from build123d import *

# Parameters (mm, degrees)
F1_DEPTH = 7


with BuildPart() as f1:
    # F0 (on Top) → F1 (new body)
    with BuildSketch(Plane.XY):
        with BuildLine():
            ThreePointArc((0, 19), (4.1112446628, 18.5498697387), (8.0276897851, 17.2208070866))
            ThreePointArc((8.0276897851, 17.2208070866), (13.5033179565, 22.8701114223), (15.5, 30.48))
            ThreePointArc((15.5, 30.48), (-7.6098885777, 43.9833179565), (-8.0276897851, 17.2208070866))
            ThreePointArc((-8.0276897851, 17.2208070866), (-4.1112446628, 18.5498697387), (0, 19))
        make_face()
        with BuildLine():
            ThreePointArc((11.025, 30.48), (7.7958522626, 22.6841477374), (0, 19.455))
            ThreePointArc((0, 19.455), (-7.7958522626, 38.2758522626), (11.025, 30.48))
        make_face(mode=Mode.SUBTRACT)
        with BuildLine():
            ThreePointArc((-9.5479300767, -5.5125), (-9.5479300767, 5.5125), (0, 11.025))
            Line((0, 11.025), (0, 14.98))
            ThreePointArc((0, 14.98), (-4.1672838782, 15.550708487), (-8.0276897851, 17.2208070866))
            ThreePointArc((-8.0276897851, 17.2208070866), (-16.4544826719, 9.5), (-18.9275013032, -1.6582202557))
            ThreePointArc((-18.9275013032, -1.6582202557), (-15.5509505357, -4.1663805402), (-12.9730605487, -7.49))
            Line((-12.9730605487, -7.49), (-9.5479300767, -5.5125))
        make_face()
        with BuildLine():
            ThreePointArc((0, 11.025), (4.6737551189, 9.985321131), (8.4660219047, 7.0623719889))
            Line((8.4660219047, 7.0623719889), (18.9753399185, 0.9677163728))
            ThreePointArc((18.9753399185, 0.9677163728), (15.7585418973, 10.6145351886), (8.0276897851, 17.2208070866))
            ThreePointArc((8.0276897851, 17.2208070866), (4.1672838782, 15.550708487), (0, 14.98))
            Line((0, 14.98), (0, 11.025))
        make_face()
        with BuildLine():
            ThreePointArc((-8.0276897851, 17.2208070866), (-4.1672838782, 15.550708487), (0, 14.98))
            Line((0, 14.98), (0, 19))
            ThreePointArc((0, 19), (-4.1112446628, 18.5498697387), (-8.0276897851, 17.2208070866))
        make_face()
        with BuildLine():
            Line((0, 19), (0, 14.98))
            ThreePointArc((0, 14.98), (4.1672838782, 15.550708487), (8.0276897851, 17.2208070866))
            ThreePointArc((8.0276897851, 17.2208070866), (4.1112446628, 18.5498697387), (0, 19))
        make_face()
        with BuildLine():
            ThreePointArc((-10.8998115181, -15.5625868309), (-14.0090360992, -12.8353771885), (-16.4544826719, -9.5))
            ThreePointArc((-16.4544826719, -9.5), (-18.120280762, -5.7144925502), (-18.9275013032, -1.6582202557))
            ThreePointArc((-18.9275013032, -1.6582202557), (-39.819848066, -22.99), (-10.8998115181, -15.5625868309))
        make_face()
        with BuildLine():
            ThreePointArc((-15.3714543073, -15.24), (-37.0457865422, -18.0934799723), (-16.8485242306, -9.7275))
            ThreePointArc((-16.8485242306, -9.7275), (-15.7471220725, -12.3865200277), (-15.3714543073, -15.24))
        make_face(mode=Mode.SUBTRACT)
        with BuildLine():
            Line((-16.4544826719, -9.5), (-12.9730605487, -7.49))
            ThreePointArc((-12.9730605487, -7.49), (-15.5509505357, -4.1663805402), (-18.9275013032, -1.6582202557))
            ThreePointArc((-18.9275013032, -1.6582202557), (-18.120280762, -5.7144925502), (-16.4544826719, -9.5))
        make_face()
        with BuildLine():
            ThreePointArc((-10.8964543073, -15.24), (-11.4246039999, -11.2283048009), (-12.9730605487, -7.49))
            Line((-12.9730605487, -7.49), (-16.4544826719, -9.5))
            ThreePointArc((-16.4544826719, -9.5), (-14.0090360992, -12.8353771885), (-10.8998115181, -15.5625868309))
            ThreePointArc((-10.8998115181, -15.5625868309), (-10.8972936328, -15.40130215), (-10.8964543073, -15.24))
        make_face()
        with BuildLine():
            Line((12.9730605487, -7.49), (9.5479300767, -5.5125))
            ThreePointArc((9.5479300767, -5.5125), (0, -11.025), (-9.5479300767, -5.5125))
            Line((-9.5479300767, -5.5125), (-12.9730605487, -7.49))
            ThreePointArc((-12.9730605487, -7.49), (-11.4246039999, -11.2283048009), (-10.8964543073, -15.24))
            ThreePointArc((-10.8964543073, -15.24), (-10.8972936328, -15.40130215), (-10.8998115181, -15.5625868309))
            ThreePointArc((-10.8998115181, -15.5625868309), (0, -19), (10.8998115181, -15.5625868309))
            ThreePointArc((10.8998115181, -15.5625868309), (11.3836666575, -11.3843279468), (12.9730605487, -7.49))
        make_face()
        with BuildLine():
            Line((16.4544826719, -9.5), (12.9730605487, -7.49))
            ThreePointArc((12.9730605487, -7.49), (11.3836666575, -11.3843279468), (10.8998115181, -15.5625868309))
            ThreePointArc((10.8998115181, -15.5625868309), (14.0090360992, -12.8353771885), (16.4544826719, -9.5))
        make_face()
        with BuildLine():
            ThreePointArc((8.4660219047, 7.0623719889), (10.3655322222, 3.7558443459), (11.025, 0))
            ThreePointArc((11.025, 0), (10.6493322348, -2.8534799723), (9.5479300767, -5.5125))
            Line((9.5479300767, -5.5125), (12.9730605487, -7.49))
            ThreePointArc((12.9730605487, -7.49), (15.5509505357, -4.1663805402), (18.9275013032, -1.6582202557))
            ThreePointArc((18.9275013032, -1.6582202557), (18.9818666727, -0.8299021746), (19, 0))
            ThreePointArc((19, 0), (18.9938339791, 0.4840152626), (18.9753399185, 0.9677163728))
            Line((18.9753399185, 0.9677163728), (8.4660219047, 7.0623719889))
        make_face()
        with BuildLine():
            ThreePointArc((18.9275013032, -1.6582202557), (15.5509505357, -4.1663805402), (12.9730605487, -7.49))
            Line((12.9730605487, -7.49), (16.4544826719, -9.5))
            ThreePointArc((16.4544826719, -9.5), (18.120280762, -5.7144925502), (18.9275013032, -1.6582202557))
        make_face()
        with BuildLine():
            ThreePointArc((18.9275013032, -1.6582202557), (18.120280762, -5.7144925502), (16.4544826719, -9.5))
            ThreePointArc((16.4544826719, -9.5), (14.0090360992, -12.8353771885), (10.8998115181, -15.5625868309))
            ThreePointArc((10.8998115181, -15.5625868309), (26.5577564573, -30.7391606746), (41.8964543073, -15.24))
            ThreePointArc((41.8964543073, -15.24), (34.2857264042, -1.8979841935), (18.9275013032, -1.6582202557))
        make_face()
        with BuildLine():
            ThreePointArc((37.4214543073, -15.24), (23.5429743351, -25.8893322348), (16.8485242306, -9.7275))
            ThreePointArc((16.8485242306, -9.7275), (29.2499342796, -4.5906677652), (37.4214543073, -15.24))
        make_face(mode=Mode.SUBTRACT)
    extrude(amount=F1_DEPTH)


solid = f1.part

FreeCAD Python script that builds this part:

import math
import FreeCAD as App
import Part
import Sketcher

doc = App.newDocument("Part")
body = doc.addObject("PartDesign::Body", "Body")

# Sketch on XY plane
sketch1 = doc.addObject("Sketcher::SketchObject", "Sketch")
body.addObject(sketch1)
sketch1.AttachmentSupport = (doc.XY_Plane, [""])
sketch1.MapMode = "FlatFace"
sketch1.addGeometry([
    Part.ArcOfCircle(Part.Circle(App.Vector(0, 0, 0), App.Vector(0, 0, 1), 19), math.radians(3), math.radians(65)),  # 0
    Part.ArcOfCircle(Part.Circle(App.Vector(0, 30.5, 0), App.Vector(0, 0, 1), 15.5), math.radians(-59), math.radians(0)),  # 1
    Part.ArcOfCircle(Part.Circle(App.Vector(0, 30.5, 0), App.Vector(0, 0, 1), 15.5), math.radians(0), math.radians(239)),  # 2
    Part.ArcOfCircle(Part.Circle(App.Vector(0, 0, 0), App.Vector(0, 0, 1), 19), math.radians(115), math.radians(185)),  # 3
    Part.ArcOfCircle(Part.Circle(App.Vector(-26.4, -15.2, 0), App.Vector(0, 0, 1), 15.5), math.radians(61), math.radians(359)),  # 4
    Part.ArcOfCircle(Part.Circle(App.Vector(0, 0, 0), App.Vector(0, 0, 1), 19), math.radians(-125), math.radians(-55)),  # 5
    Part.ArcOfCircle(Part.Circle(App.Vector(26.4, -15.2, 0), App.Vector(0, 0, 1), 15.5), math.radians(-179), math.radians(0)),  # 6
    Part.ArcOfCircle(Part.Circle(App.Vector(26.4, -15.2, 0), App.Vector(0, 0, 1), 15.5), math.radians(0), math.radians(119)),  # 7
    Part.ArcOfCircle(Part.Circle(App.Vector(0, 0, 0), App.Vector(0, 0, 1), 19), math.radians(-5.01), math.radians(0)),  # 8
    Part.ArcOfCircle(Part.Circle(App.Vector(0, 0, 0), App.Vector(0, 0, 1), 19), math.radians(0), math.radians(2.92)),  # 9
    Part.ArcOfCircle(Part.Circle(App.Vector(-26.4, -15.2, 0), App.Vector(0, 0, 1), 11), math.radians(30), math.radians(360)),  # 10
    Part.ArcOfCircle(Part.Circle(App.Vector(-26.4, -15.2, 0), App.Vector(0, 0, 1), 11), math.radians(0), math.radians(30)),  # 11
    Part.ArcOfCircle(Part.Circle(App.Vector(26.4, -15.2, 0), App.Vector(0, 0, 1), 11), math.radians(0), math.radians(150)),  # 12
    Part.ArcOfCircle(Part.Circle(App.Vector(26.4, -15.2, 0), App.Vector(0, 0, 1), 11), math.radians(150), math.radians(360)),  # 13
    Part.ArcOfCircle(Part.Circle(App.Vector(0, 0, 0), App.Vector(0, 0, 1), 11), math.radians(-150), math.radians(-30)),  # 14
    Part.ArcOfCircle(Part.Circle(App.Vector(0, 0, 0), App.Vector(0, 0, 1), 11), math.radians(90), math.radians(210)),  # 15
    Part.ArcOfCircle(Part.Circle(App.Vector(0, 0, 0), App.Vector(0, 0, 1), 11), math.radians(0), math.radians(90)),  # 16
    Part.ArcOfCircle(Part.Circle(App.Vector(0, 0, 0), App.Vector(0, 0, 1), 11), math.radians(-30), math.radians(0)),  # 17
    Part.ArcOfCircle(Part.Circle(App.Vector(0, 30.5, 0), App.Vector(0, 0, 1), 11), math.radians(0), math.radians(270)),  # 18
    Part.ArcOfCircle(Part.Circle(App.Vector(0, 30.5, 0), App.Vector(0, 0, 1), 11), math.radians(-90), math.radians(0)),  # 19
], False)
sketch1.addConstraint([
    Sketcher.Constraint("Coincident", 0, 2, 1, 1),
    Sketcher.Constraint("Tangent", 1, 2, 2, 1),
    Sketcher.Constraint("Coincident", 2, 2, 3, 1),
    Sketcher.Constraint("Coincident", 3, 2, 4, 1),
    Sketcher.Constraint("Coincident", 4, 2, 5, 1),
    Sketcher.Constraint("Coincident", 5, 2, 6, 1),
    Sketcher.Constraint("Tangent", 6, 2, 7, 1),
    Sketcher.Constraint("Coincident", 7, 2, 8, 1),
    Sketcher.Constraint("Tangent", 8, 2, 9, 1),
    Sketcher.Constraint("Tangent", 9, 2, 0, 1),
    Sketcher.Constraint("Tangent", 10, 1, 11, 2),
    Sketcher.Constraint("Coincident", 11, 1, 10, 2),
    Sketcher.Constraint("Tangent", 12, 1, 13, 2),
    Sketcher.Constraint("Coincident", 13, 1, 12, 2),
    Sketcher.Constraint("Tangent", 14, 1, 15, 2),
    Sketcher.Constraint("Tangent", 15, 1, 16, 2),
    Sketcher.Constraint("Tangent", 16, 1, 17, 2),
    Sketcher.Constraint("Tangent", 17, 1, 14, 2),
    Sketcher.Constraint("Tangent", 18, 1, 19, 2),
    Sketcher.Constraint("Coincident", 19, 1, 18, 2),
    Sketcher.Constraint("Coincident", 0, 3, -1, 1),
    Sketcher.Constraint("Coincident", 3, 3, -1, 1),
    Sketcher.Constraint("Coincident", 5, 3, -1, 1),
    Sketcher.Constraint("Coincident", 8, 3, -1, 1),
    Sketcher.Constraint("Coincident", 14, 3, -1, 1),
    Sketcher.Constraint("Coincident", 10, 3, 4, 3),
    Sketcher.Constraint("Coincident", 12, 3, 6, 3),
    Sketcher.Constraint("Coincident", 18, 3, 1, 3),
    Sketcher.Constraint("Equal", 1, 2),
    Sketcher.Constraint("Equal", 0, 3),
    Sketcher.Constraint("Equal", 2, 4),
    Sketcher.Constraint("Equal", 3, 5),
    Sketcher.Constraint("Equal", 4, 6),
    Sketcher.Constraint("Equal", 6, 7),
    Sketcher.Constraint("Equal", 11, 12),
    Sketcher.Constraint("Equal", 13, 14),
    Sketcher.Constraint("Equal", 14, 15),
    Sketcher.Constraint("Equal", 17, 18),
    Sketcher.Constraint("Symmetric", 4, 3, 6, 3, -2),
    Sketcher.Constraint("PointOnObject", 1, 3, -2),
    Sketcher.Constraint("PointOnObject", 8, 2, -1),
    Sketcher.Constraint("PointOnObject", 15, 1, -2),
    Sketcher.Constraint("PointOnObject", 16, 1, -1),
    Sketcher.Constraint("PointOnObject", 19, 1, -2),
    Sketcher.Constraint("Horizontal", 19, 3, 1, 2),
    Sketcher.Constraint("Horizontal", 13, 3, 6, 2),
    Sketcher.Constraint("Horizontal", 6, 2, 11, 1),
    Sketcher.Constraint("Horizontal", 11, 1, 12, 1),
    Sketcher.Constraint("Horizontal", 10, 1, 13, 1),
    Sketcher.Constraint("Horizontal", 14, 1, 17, 1),
    Sketcher.Constraint("Horizontal", 1, 2, 18, 1),
    Sketcher.Constraint("Radius", 0, 19.0),
    Sketcher.Constraint("Radius", 1, 15.5),
    Sketcher.Constraint("Radius", 10, 11.025),
    Sketcher.Constraint("DistanceY", -1, 1, 1, 3, 30.48),
    Sketcher.Constraint("DistanceY", 4, 3, -1, 1, 15.24),
    Sketcher.Constraint("DistanceY", 10, 1, 14, 1, 4.215),
    Sketcher.Constraint("DistanceX", 3, 2, -1, 1, 18.927501),
    Sketcher.Constraint("DistanceY", 10, 1, -1, 1, 9.7275),
    Sketcher.Constraint("DistanceX", -1, 1, 9, 2, 18.97534),
])
pad1 = doc.addObject("PartDesign::Pad", "Pad")
body.addObject(pad1)
pad1.Profile = sketch1
pad1.Length = 7

doc.recompute()
